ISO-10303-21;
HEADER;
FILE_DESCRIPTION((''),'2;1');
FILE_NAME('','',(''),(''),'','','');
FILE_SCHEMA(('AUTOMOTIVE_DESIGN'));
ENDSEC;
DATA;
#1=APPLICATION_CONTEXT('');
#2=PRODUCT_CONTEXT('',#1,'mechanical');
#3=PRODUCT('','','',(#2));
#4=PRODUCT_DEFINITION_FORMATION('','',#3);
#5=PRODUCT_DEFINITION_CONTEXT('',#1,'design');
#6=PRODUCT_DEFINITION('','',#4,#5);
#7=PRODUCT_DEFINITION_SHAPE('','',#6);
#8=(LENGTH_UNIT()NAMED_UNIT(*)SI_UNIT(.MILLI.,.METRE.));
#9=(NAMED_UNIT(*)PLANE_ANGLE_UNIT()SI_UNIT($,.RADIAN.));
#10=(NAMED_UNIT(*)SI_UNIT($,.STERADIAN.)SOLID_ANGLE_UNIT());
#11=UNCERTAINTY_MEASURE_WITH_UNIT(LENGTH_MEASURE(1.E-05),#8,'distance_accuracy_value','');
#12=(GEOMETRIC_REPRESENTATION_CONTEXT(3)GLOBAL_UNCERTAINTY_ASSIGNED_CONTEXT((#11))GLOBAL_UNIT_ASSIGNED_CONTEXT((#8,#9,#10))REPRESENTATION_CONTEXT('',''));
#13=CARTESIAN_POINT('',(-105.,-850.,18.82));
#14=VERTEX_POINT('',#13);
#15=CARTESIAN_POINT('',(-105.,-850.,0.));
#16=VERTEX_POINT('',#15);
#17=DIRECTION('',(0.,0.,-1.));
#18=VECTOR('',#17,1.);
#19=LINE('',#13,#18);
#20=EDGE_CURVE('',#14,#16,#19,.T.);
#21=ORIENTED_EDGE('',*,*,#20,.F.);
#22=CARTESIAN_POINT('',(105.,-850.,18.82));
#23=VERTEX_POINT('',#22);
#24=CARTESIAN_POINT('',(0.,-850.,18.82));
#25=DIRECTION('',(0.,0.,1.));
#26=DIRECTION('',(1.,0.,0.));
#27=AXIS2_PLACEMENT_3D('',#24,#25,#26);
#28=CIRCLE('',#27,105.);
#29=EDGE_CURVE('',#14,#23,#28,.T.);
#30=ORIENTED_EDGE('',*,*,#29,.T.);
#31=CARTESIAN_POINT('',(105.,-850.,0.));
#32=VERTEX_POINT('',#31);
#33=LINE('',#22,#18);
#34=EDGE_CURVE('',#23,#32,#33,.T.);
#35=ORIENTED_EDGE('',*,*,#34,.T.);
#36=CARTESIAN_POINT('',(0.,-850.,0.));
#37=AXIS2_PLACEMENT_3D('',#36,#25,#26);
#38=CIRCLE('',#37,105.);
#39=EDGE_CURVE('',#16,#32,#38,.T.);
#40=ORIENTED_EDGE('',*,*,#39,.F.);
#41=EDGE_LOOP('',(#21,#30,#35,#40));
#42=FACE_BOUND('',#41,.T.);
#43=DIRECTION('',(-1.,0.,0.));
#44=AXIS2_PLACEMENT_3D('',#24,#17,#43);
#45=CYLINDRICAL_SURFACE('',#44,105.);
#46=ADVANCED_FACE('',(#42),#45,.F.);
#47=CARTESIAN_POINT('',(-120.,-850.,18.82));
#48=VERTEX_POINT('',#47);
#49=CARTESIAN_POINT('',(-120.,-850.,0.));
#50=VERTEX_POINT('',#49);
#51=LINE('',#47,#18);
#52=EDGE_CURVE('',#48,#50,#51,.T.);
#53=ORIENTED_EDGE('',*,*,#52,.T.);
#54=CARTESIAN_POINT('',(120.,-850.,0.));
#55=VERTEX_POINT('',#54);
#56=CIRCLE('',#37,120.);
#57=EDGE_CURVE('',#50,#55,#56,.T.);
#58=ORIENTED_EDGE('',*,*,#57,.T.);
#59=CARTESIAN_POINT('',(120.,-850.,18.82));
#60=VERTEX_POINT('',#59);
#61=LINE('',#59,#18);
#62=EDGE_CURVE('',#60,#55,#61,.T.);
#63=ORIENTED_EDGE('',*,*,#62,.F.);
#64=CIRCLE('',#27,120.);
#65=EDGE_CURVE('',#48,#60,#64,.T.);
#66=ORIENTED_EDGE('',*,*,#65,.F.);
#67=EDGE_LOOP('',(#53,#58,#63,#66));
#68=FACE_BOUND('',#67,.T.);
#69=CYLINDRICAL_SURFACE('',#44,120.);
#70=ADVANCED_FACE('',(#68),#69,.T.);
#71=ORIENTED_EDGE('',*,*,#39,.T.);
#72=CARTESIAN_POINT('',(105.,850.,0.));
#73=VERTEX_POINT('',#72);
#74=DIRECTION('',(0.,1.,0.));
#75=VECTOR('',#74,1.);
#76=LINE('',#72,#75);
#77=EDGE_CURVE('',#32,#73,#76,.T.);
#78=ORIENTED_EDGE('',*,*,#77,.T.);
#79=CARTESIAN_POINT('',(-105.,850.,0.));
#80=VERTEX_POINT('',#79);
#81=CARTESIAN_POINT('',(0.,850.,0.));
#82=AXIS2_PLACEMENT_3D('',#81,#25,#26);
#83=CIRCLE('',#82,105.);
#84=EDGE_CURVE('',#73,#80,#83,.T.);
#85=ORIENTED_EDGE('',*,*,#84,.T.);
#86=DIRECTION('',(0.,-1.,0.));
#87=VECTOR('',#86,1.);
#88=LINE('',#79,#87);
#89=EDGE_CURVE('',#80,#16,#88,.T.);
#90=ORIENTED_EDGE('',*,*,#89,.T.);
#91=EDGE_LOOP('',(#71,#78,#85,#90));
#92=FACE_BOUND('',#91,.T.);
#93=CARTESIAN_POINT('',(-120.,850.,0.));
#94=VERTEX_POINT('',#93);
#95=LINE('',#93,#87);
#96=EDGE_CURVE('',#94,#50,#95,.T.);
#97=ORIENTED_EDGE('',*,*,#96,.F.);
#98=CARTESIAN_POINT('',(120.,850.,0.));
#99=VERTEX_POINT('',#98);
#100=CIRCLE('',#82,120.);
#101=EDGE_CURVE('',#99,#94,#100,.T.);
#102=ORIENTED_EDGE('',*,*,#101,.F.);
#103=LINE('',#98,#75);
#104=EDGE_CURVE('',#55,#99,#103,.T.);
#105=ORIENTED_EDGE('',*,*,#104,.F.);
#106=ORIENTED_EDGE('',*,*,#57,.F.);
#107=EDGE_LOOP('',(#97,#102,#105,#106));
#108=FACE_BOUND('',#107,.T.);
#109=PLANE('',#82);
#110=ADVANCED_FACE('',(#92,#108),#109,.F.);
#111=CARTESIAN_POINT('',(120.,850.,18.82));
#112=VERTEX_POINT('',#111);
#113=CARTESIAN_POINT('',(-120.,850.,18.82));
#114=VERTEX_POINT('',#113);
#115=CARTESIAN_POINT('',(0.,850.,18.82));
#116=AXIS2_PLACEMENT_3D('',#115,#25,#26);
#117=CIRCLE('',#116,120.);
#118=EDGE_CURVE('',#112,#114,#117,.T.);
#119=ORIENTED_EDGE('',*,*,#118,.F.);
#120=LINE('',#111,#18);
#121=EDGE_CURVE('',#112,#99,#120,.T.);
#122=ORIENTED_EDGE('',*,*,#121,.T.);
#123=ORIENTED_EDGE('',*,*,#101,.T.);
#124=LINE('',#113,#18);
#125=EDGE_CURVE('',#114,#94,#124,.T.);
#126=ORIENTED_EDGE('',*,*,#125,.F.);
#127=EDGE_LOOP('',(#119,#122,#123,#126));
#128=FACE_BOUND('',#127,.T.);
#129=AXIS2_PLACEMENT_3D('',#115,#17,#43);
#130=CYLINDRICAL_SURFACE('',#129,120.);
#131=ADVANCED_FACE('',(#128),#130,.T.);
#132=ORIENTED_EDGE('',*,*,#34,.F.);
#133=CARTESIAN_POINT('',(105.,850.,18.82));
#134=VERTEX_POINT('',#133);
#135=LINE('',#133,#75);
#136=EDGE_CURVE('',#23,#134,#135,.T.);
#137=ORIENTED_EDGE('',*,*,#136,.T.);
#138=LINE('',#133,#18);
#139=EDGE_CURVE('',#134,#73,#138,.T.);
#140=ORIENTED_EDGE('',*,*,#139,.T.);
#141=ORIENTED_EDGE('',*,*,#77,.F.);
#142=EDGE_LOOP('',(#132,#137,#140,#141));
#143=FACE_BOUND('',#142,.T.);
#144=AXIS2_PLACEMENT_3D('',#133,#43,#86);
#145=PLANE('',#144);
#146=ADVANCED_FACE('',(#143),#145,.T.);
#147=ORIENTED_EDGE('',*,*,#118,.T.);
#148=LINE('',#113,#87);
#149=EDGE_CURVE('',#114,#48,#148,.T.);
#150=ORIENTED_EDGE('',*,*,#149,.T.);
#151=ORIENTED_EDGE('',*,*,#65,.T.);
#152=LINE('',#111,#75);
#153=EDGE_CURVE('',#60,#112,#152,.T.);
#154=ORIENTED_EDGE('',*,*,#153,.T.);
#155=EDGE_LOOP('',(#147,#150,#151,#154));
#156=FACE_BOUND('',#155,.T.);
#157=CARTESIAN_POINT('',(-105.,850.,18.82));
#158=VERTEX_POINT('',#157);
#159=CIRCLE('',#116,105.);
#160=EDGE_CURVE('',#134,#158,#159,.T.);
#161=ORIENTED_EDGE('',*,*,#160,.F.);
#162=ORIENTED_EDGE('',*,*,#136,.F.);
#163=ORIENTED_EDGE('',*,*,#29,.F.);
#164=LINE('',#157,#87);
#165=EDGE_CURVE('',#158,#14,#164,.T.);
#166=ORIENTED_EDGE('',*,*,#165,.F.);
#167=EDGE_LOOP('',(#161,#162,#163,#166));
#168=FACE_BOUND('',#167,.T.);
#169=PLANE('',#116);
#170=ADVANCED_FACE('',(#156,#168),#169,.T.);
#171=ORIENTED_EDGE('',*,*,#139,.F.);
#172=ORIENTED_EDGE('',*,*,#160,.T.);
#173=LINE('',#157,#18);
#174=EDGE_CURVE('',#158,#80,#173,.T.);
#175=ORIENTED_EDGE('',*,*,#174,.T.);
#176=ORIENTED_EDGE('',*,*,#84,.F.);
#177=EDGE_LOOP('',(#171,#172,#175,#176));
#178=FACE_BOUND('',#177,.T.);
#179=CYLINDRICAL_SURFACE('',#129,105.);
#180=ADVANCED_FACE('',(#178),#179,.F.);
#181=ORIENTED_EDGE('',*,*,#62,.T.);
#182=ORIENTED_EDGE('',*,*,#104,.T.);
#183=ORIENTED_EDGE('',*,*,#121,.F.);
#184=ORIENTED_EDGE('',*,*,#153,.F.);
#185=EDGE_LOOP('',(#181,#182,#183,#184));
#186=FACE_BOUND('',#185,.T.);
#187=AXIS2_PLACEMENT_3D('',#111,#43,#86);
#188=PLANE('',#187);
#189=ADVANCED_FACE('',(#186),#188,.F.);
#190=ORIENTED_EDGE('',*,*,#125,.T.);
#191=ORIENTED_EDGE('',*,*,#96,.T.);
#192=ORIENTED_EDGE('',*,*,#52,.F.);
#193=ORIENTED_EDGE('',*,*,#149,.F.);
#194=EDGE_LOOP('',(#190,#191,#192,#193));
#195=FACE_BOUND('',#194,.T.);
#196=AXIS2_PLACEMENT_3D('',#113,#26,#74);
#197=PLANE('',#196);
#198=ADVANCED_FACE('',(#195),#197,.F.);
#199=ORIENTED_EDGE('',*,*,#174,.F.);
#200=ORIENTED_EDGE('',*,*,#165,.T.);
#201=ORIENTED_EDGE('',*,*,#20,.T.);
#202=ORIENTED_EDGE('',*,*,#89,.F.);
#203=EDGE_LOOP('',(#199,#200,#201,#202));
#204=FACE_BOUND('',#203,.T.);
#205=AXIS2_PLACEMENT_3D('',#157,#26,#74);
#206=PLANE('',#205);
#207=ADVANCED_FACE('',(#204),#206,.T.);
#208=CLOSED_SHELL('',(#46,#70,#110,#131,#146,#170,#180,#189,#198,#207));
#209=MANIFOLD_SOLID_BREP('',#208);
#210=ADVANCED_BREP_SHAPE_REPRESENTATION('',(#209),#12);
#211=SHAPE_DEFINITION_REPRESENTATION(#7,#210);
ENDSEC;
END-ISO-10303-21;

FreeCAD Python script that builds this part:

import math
import FreeCAD as App
import Part
import Sketcher

V = App.Vector
Q = App.Units.Quantity

doc = App.newDocument("Part")
body = doc.addObject("PartDesign::Body", "Body")

sketch1 = body.newObject("Sketcher::SketchObject", "Sketch")
sketch1.AttachmentSupport = (doc.getObject("XY_Plane"), [""])
sketch1.MapMode = "FlatFace"
sketch1.addGeometry([
    Part.LineSegment(V(120, -850, 0), V(120, 850, 0)),
    Part.ArcOfCircle(Part.Circle(V(0, 850, 0), V(0, 0, 1), 120), math.radians(0), math.radians(180)),
    Part.LineSegment(V(-120, 850, 0), V(-120, -850, 0)),
    Part.ArcOfCircle(Part.Circle(V(0, -850, 0), V(0, 0, 1), 120), math.radians(180), math.radians(360)),
    Part.LineSegment(V(105, 850, 0), V(105, -850, 0)),
    Part.ArcOfCircle(Part.Circle(V(0, -850, 0), V(0, 0, 1), 105), math.radians(180), math.radians(360)),
    Part.LineSegment(V(-105, -850, 0), V(-105, 850, 0)),
    Part.ArcOfCircle(Part.Circle(V(0, 850, 0), V(0, 0, 1), 105), math.radians(0), math.radians(180)),
], False)
sketch1.addConstraint([
    Sketcher.Constraint("Tangent", 0, 2, 1, 1),
    Sketcher.Constraint("Tangent", 1, 2, 2, 1),
    Sketcher.Constraint("Tangent", 2, 2, 3, 1),
    Sketcher.Constraint("Tangent", 3, 2, 0, 1),
    Sketcher.Constraint("Tangent", 4, 2, 5, 2),
    Sketcher.Constraint("Tangent", 5, 1, 6, 1),
    Sketcher.Constraint("Tangent", 6, 2, 7, 2),
    Sketcher.Constraint("Tangent", 7, 1, 4, 1),
    Sketcher.Constraint("Vertical", 0),
    Sketcher.Constraint("Vertical", 2),
    Sketcher.Constraint("Vertical", 4),
    Sketcher.Constraint("Vertical", 6),
    Sketcher.Constraint("Coincident", 5, 3, 3, 3),
    Sketcher.Constraint("Symmetric", 1, 3, 3, 3, -1, 1),
    Sketcher.Constraint("Horizontal", 7, 3, 0, 2),
    Sketcher.Constraint("Radius", 1, Q("120 mm")),
    Sketcher.Constraint("Radius", 5, Q("105 mm")),
    Sketcher.Constraint("DistanceY", 0, 1, 0, 2, Q("1700 mm")),
])
pad1 = body.newObject("PartDesign::Pad", "Pad")
pad1.Profile = sketch1
pad1.Length = 18.82

doc.recompute()
